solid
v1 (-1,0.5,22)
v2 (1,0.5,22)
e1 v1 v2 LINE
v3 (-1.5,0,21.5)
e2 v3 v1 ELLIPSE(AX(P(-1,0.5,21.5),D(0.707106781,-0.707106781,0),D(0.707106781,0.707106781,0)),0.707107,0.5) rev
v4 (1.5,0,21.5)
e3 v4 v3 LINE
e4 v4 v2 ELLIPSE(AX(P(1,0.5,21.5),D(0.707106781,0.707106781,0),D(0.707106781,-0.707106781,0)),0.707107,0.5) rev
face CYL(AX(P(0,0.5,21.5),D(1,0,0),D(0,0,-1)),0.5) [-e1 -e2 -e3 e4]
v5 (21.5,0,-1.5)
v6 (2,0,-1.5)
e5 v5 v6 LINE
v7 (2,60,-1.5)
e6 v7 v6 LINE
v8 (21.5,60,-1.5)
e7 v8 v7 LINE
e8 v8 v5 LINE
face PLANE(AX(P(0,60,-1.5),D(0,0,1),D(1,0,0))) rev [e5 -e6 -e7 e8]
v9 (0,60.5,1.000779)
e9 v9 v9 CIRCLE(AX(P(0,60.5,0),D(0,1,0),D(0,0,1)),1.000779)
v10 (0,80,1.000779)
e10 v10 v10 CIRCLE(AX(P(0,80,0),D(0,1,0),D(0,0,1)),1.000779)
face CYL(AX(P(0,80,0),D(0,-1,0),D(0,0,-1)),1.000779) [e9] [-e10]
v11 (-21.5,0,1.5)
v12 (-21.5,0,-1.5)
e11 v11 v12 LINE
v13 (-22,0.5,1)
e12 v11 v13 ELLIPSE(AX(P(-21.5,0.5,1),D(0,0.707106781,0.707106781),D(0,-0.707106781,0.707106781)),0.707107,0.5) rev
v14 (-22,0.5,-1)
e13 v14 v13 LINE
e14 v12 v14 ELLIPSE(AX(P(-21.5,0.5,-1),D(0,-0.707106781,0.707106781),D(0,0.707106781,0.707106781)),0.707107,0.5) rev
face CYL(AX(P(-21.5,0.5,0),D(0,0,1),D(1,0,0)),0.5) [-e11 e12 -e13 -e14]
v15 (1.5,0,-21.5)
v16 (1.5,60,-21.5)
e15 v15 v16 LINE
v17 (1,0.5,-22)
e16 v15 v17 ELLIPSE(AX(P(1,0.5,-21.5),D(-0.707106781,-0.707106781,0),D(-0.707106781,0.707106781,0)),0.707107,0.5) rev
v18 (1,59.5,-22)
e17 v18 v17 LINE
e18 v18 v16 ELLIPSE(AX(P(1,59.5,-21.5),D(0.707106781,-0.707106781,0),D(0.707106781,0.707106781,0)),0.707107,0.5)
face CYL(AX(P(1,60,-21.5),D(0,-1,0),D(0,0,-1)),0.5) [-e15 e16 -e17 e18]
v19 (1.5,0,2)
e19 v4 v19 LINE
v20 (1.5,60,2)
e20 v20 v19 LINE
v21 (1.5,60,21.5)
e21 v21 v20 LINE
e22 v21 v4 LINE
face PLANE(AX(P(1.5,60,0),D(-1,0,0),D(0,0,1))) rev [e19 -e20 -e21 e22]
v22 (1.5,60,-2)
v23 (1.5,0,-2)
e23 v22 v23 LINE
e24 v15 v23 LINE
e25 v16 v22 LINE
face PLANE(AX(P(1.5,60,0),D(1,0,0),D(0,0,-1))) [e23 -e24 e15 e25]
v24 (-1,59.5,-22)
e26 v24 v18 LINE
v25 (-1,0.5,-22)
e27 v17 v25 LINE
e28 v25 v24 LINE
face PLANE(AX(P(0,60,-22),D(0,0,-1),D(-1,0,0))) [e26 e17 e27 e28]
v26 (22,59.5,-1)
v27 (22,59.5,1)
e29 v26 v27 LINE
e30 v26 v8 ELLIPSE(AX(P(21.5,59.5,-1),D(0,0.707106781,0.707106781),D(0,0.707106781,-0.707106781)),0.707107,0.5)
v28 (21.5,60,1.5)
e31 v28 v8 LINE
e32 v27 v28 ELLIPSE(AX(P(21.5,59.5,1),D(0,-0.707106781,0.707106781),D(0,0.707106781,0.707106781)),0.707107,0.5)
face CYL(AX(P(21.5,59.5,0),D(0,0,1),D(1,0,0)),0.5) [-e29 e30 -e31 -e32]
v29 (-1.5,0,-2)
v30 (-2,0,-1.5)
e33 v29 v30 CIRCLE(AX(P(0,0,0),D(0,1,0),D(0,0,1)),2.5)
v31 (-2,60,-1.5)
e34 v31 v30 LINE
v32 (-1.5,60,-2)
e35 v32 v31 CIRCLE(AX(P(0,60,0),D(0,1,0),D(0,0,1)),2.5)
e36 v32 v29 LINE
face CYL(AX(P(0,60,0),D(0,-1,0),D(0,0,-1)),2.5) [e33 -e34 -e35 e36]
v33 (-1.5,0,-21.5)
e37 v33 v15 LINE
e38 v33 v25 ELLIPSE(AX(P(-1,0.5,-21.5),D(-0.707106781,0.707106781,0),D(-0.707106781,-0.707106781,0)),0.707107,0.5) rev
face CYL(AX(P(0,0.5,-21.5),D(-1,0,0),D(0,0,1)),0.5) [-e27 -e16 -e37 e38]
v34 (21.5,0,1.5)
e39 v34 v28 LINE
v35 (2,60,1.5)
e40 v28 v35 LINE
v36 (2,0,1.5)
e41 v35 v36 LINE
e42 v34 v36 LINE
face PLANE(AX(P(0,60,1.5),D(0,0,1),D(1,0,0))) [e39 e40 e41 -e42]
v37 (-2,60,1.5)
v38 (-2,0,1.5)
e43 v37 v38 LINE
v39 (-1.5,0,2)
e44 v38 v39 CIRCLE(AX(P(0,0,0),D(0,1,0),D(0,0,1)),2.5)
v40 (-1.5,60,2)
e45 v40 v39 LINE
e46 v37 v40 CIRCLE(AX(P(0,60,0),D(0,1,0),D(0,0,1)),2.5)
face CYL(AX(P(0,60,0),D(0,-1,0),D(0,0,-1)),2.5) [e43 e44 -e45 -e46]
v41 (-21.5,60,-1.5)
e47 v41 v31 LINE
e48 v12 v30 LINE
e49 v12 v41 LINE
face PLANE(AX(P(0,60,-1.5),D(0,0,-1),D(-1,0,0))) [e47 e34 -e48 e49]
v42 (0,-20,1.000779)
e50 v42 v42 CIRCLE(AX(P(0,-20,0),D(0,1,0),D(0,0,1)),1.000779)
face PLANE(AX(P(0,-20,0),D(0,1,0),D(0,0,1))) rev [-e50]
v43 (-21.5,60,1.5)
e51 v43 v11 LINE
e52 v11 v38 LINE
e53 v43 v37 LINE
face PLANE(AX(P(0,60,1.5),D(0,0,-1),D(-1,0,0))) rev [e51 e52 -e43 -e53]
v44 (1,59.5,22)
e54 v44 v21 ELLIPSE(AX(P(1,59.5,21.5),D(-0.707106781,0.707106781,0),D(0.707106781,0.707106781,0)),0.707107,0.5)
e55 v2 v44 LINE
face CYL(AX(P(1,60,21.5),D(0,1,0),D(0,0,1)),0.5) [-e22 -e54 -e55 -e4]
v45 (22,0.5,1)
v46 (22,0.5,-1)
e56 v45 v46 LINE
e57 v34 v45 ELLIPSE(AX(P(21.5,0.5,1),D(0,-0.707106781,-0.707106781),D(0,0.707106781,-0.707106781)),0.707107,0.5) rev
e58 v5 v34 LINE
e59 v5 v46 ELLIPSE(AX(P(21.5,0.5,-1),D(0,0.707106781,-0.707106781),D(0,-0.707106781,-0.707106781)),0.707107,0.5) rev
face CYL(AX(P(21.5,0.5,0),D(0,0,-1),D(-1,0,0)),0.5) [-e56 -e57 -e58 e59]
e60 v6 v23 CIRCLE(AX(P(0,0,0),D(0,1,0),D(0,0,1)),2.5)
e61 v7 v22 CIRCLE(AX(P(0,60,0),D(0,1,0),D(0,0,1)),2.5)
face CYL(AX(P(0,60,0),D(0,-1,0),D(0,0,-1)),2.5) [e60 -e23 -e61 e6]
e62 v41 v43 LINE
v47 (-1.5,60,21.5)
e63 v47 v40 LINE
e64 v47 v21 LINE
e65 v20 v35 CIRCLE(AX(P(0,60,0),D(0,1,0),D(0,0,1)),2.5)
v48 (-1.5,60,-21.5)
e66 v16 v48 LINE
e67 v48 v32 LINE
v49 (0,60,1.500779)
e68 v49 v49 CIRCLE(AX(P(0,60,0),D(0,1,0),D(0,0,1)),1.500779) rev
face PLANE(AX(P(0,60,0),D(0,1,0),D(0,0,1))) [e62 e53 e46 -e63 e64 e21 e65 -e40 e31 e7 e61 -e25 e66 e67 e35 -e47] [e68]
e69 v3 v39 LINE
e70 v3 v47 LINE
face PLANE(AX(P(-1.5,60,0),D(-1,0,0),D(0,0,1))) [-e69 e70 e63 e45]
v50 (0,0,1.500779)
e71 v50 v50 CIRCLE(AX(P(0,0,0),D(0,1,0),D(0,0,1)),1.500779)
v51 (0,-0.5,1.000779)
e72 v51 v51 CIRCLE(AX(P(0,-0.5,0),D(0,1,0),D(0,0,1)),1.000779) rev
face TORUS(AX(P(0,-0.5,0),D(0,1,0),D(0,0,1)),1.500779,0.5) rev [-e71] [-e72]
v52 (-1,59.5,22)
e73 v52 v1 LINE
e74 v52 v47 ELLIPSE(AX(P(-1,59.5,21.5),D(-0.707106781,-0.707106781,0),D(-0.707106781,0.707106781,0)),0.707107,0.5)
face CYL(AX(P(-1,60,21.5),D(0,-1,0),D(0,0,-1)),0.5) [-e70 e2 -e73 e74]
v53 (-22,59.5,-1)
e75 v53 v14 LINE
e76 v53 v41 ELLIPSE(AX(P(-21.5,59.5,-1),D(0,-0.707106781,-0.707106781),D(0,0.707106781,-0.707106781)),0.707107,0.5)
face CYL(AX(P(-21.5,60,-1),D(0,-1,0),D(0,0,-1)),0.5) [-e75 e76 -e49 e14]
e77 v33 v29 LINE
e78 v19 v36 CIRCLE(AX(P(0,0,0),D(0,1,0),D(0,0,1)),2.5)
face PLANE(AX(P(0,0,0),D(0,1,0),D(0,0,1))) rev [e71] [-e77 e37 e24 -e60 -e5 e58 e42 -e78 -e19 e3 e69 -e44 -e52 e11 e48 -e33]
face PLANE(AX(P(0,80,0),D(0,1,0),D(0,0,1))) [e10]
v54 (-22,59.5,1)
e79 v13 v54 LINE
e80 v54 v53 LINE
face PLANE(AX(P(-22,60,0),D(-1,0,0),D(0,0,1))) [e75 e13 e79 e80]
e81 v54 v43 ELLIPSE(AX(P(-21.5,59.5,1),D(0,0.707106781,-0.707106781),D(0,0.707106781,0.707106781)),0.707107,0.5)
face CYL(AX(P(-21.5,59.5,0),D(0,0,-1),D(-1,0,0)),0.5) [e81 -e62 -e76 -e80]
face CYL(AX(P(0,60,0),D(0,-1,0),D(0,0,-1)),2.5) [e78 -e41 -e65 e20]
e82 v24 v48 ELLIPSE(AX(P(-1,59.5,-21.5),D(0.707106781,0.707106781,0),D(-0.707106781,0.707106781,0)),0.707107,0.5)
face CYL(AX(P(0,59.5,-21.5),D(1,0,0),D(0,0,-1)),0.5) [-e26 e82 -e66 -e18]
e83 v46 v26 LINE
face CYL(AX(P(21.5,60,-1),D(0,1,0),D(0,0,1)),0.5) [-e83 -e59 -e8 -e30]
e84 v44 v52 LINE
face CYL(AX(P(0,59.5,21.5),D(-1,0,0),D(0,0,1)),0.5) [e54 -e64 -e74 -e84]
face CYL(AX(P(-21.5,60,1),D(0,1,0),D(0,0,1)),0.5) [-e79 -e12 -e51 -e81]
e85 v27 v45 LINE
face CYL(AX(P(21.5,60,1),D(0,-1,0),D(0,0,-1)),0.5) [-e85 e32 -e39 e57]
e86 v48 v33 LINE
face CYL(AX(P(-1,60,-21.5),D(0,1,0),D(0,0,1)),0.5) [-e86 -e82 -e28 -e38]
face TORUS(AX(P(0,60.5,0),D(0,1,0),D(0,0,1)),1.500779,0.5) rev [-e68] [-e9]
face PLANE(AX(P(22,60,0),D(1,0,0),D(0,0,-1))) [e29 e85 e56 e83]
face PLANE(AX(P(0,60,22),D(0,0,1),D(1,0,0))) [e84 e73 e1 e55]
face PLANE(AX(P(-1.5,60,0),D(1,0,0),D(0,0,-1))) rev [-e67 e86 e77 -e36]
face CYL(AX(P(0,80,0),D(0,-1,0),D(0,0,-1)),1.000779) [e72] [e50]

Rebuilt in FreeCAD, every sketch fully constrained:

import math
import FreeCAD as App
import Part
import Sketcher
from FreeCAD import Vector


def edges_at(feature, points):
    """Names of the edges that pass closest to the given points."""
    edges = feature.Shape.Edges
    near = lambda p: min(range(len(edges)), key=lambda i: edges[i].distToShape(Part.Vertex(*p))[0])
    return sorted({f"Edge{near(p) + 1}" for p in points})

doc = App.newDocument("Part")
params = doc.addObject("Spreadsheet::Sheet", "Params")
for row, (alias, value) in enumerate([
    ("sketch1_radius", "2.5 mm"),
    ("sketch1_width", "20 mm"),
    ("sketch1_width2", "3 mm"),
    ("pad1_length", "60 mm"),
    ("fillet_radius", "0.5 mm"),
    ("pocket1_length", "60 mm"),
    ("pad2_length", "100 mm"),
    ("fillet2_radius", "0.5 mm"),
], start=1):
    params.set(f"A{row}", alias)
    params.set(f"B{row}", "=" + value)
    params.setAlias(f"B{row}", alias)

body = doc.addObject("PartDesign::Body", "Body")

# Sketch on XZ plane
sketch1 = doc.addObject("Sketcher::SketchObject", "Sketch")
body.addObject(sketch1)
sketch1.AttachmentSupport = (doc.XZ_Plane, [""])
sketch1.MapMode = "FlatFace"
sketch1.addGeometry([
    Part.LineSegment(Vector(22, 1.5, 0), Vector(22, -1.5, 0)),  # 0
    Part.LineSegment(Vector(22, -1.5, 0), Vector(2, -1.5, 0)),  # 1
    Part.ArcOfCircle(Part.Circle(Vector(0, 0, 0), Vector(0, 0, 1), 2.5), math.radians(-53.13), math.radians(-36.87)),  # 2
    Part.LineSegment(Vector(1.5, -2, 0), Vector(1.5, -22, 0)),  # 3
    Part.LineSegment(Vector(1.5, -22, 0), Vector(-1.5, -22, 0)),  # 4
    Part.LineSegment(Vector(-1.5, -22, 0), Vector(-1.5, -2, 0)),  # 5
    Part.ArcOfCircle(Part.Circle(Vector(0, 0, 0), Vector(0, 0, 1), 2.5), math.radians(-143.13), math.radians(-126.87)),  # 6
    Part.LineSegment(Vector(-2, -1.5, 0), Vector(-22, -1.5, 0)),  # 7
    Part.LineSegment(Vector(-22, -1.5, 0), Vector(-22, 1.5, 0)),  # 8
    Part.LineSegment(Vector(-22, 1.5, 0), Vector(-2, 1.5, 0)),  # 9
    Part.ArcOfCircle(Part.Circle(Vector(0, 0, 0), Vector(0, 0, 1), 2.5), math.radians(126.87), math.radians(143.13)),  # 10
    Part.LineSegment(Vector(-1.5, 2, 0), Vector(-1.5, 22, 0)),  # 11
    Part.LineSegment(Vector(-1.5, 22, 0), Vector(1.5, 22, 0)),  # 12
    Part.LineSegment(Vector(1.5, 22, 0), Vector(1.5, 2, 0)),  # 13
    Part.ArcOfCircle(Part.Circle(Vector(0, 0, 0), Vector(0, 0, 1), 2.5), math.radians(36.87), math.radians(53.13)),  # 14
    Part.LineSegment(Vector(2, 1.5, 0), Vector(22, 1.5, 0)),  # 15
], False)
sketch1.addConstraint([
    Sketcher.Constraint("Coincident", 0, 2, 1, 1),
    Sketcher.Constraint("Coincident", 1, 2, 2, 2),
    Sketcher.Constraint("Coincident", 2, 1, 3, 1),
    Sketcher.Constraint("Coincident", 3, 2, 4, 1),
    Sketcher.Constraint("Coincident", 4, 2, 5, 1),
    Sketcher.Constraint("Coincident", 5, 2, 6, 2),
    Sketcher.Constraint("Coincident", 6, 1, 7, 1),
    Sketcher.Constraint("Coincident", 7, 2, 8, 1),
    Sketcher.Constraint("Coincident", 8, 2, 9, 1),
    Sketcher.Constraint("Coincident", 9, 2, 10, 2),
    Sketcher.Constraint("Coincident", 10, 1, 11, 1),
    Sketcher.Constraint("Coincident", 11, 2, 12, 1),
    Sketcher.Constraint("Coincident", 12, 2, 13, 1),
    Sketcher.Constraint("Coincident", 13, 2, 14, 2),
    Sketcher.Constraint("Coincident", 14, 1, 15, 1),
    Sketcher.Constraint("Coincident", 15, 2, 0, 1),
    Sketcher.Constraint("Vertical", 0),
    Sketcher.Constraint("Horizontal", 1),
    Sketcher.Constraint("Vertical", 3),
    Sketcher.Constraint("Horizontal", 4),
    Sketcher.Constraint("Vertical", 5),
    Sketcher.Constraint("Horizontal", 7),
    Sketcher.Constraint("Vertical", 8),
    Sketcher.Constraint("Horizontal", 9),
    Sketcher.Constraint("Vertical", 11),
    Sketcher.Constraint("Horizontal", 12),
    Sketcher.Constraint("Vertical", 13),
    Sketcher.Constraint("Horizontal", 15),
    Sketcher.Constraint("Coincident", 2, 3, -1, 1),
    Sketcher.Constraint("Coincident", 6, 3, -1, 1),
    Sketcher.Constraint("Coincident", 10, 3, -1, 1),
    Sketcher.Constraint("Coincident", 14, 3, -1, 1),
    Sketcher.Constraint("Equal", 2, 6),
    Sketcher.Constraint("Equal", 6, 10),
    Sketcher.Constraint("Equal", 10, 14),
    Sketcher.Constraint("Symmetric", 0, 2, 8, 2, -1, 1),
    Sketcher.Constraint("Symmetric", 3, 2, 11, 2, -1, 1),
    Sketcher.Constraint("Horizontal", 2, 1, 5, 2),
    Sketcher.Constraint("Horizontal", 1, 2, 6, 1),
    Sketcher.Constraint("Horizontal", 10, 1, 13, 2),
    Sketcher.Constraint("Horizontal", 9, 2, 14, 1),
    Sketcher.Constraint("Equal", 12, 0),
    Sketcher.Constraint("Equal", 15, 3),
    Sketcher.Constraint("Radius", 2, 2.5),
    Sketcher.Constraint("DistanceX", 1, 2, 1, 1, 20.0),
    Sketcher.Constraint("DistanceX", 4, 2, 4, 1, 3.0),
])
sketch1.setExpression("Constraints[43]", "Params.sketch1_radius")
sketch1.setExpression("Constraints[44]", "Params.sketch1_width")
sketch1.setExpression("Constraints[45]", "Params.sketch1_width2")
pad1 = doc.addObject("PartDesign::Pad", "Pad")
body.addObject(pad1)
pad1.Profile = sketch1
pad1.setExpression("Length", "Params.pad1_length")
pad1.Reversed = True
doc.recompute()

fillet = doc.addObject("PartDesign::Fillet", "Fillet")
body.addObject(fillet)
fillet.Base = (pad1, edges_at(pad1, [
    (22, 0, 0),
    (0, 0, 22),
    (0, 60, -22),
    (-22, 0, 0),
    (0, 0, -22),
    (22, 30, -1.5),
    (22, 30, 1.5),
    (1.5, 30, 22),
    (-1.5, 30, 22),
    (-22, 30, 1.5),
    (-22, 30, -1.5),
    (-1.5, 30, -22),
    (1.5, 30, -22),
    (-22, 60, 0),
    (0, 60, 22),
    (22, 60, 0),
]))
fillet.setExpression("Radius", "Params.fillet_radius")

# Sketch on XZ plane
sketch2 = doc.addObject("Sketcher::SketchObject", "Sketch001")
body.addObject(sketch2)
sketch2.AttachmentSupport = (doc.XZ_Plane, [""])
sketch2.MapMode = "FlatFace"
sketch2.addGeometry(Part.Circle(Vector(0, 0, 0), Vector(0, 0, 1), 1), False)
sketch2.addConstraint([
    Sketcher.Constraint("Coincident", 0, 3, -1, 1),
    Sketcher.Constraint("Diameter", 0, 2.001557),
])
pocket1 = doc.addObject("PartDesign::Pocket", "Pocket")
body.addObject(pocket1)
pocket1.Profile = sketch2
pocket1.setExpression("Length", "Params.pocket1_length")

# Sketch on XZ plane
sketch3 = doc.addObject("Sketcher::SketchObject", "Sketch002")
body.addObject(sketch3)
sketch3.AttachmentSupport = (doc.XZ_Plane, [""])
sketch3.MapMode = "FlatFace"
sketch3.AttachmentOffset = App.Placement(Vector(0, 0, -30), App.Rotation())
sketch3.addGeometry(Part.Circle(Vector(0, 0, 0), Vector(0, 0, 1), 1), False)
sketch3.addConstraint([
    Sketcher.Constraint("Coincident", 0, 3, -1, 1),
    Sketcher.Constraint("Diameter", 0, 2.001557),
])
pad2 = doc.addObject("PartDesign::Pad", "Pad001")
body.addObject(pad2)
pad2.Profile = sketch3
pad2.setExpression("Length", "Params.pad2_length")
pad2.Midplane = True
doc.recompute()

fillet2 = doc.addObject("PartDesign::Fillet", "Fillet001")
body.addObject(fillet2)
fillet2.Base = (pad2, edges_at(pad2, [(0, 60, -1.001), (0, 0, -1.001)]))
fillet2.setExpression("Radius", "Params.fillet2_radius")

doc.recompute()
